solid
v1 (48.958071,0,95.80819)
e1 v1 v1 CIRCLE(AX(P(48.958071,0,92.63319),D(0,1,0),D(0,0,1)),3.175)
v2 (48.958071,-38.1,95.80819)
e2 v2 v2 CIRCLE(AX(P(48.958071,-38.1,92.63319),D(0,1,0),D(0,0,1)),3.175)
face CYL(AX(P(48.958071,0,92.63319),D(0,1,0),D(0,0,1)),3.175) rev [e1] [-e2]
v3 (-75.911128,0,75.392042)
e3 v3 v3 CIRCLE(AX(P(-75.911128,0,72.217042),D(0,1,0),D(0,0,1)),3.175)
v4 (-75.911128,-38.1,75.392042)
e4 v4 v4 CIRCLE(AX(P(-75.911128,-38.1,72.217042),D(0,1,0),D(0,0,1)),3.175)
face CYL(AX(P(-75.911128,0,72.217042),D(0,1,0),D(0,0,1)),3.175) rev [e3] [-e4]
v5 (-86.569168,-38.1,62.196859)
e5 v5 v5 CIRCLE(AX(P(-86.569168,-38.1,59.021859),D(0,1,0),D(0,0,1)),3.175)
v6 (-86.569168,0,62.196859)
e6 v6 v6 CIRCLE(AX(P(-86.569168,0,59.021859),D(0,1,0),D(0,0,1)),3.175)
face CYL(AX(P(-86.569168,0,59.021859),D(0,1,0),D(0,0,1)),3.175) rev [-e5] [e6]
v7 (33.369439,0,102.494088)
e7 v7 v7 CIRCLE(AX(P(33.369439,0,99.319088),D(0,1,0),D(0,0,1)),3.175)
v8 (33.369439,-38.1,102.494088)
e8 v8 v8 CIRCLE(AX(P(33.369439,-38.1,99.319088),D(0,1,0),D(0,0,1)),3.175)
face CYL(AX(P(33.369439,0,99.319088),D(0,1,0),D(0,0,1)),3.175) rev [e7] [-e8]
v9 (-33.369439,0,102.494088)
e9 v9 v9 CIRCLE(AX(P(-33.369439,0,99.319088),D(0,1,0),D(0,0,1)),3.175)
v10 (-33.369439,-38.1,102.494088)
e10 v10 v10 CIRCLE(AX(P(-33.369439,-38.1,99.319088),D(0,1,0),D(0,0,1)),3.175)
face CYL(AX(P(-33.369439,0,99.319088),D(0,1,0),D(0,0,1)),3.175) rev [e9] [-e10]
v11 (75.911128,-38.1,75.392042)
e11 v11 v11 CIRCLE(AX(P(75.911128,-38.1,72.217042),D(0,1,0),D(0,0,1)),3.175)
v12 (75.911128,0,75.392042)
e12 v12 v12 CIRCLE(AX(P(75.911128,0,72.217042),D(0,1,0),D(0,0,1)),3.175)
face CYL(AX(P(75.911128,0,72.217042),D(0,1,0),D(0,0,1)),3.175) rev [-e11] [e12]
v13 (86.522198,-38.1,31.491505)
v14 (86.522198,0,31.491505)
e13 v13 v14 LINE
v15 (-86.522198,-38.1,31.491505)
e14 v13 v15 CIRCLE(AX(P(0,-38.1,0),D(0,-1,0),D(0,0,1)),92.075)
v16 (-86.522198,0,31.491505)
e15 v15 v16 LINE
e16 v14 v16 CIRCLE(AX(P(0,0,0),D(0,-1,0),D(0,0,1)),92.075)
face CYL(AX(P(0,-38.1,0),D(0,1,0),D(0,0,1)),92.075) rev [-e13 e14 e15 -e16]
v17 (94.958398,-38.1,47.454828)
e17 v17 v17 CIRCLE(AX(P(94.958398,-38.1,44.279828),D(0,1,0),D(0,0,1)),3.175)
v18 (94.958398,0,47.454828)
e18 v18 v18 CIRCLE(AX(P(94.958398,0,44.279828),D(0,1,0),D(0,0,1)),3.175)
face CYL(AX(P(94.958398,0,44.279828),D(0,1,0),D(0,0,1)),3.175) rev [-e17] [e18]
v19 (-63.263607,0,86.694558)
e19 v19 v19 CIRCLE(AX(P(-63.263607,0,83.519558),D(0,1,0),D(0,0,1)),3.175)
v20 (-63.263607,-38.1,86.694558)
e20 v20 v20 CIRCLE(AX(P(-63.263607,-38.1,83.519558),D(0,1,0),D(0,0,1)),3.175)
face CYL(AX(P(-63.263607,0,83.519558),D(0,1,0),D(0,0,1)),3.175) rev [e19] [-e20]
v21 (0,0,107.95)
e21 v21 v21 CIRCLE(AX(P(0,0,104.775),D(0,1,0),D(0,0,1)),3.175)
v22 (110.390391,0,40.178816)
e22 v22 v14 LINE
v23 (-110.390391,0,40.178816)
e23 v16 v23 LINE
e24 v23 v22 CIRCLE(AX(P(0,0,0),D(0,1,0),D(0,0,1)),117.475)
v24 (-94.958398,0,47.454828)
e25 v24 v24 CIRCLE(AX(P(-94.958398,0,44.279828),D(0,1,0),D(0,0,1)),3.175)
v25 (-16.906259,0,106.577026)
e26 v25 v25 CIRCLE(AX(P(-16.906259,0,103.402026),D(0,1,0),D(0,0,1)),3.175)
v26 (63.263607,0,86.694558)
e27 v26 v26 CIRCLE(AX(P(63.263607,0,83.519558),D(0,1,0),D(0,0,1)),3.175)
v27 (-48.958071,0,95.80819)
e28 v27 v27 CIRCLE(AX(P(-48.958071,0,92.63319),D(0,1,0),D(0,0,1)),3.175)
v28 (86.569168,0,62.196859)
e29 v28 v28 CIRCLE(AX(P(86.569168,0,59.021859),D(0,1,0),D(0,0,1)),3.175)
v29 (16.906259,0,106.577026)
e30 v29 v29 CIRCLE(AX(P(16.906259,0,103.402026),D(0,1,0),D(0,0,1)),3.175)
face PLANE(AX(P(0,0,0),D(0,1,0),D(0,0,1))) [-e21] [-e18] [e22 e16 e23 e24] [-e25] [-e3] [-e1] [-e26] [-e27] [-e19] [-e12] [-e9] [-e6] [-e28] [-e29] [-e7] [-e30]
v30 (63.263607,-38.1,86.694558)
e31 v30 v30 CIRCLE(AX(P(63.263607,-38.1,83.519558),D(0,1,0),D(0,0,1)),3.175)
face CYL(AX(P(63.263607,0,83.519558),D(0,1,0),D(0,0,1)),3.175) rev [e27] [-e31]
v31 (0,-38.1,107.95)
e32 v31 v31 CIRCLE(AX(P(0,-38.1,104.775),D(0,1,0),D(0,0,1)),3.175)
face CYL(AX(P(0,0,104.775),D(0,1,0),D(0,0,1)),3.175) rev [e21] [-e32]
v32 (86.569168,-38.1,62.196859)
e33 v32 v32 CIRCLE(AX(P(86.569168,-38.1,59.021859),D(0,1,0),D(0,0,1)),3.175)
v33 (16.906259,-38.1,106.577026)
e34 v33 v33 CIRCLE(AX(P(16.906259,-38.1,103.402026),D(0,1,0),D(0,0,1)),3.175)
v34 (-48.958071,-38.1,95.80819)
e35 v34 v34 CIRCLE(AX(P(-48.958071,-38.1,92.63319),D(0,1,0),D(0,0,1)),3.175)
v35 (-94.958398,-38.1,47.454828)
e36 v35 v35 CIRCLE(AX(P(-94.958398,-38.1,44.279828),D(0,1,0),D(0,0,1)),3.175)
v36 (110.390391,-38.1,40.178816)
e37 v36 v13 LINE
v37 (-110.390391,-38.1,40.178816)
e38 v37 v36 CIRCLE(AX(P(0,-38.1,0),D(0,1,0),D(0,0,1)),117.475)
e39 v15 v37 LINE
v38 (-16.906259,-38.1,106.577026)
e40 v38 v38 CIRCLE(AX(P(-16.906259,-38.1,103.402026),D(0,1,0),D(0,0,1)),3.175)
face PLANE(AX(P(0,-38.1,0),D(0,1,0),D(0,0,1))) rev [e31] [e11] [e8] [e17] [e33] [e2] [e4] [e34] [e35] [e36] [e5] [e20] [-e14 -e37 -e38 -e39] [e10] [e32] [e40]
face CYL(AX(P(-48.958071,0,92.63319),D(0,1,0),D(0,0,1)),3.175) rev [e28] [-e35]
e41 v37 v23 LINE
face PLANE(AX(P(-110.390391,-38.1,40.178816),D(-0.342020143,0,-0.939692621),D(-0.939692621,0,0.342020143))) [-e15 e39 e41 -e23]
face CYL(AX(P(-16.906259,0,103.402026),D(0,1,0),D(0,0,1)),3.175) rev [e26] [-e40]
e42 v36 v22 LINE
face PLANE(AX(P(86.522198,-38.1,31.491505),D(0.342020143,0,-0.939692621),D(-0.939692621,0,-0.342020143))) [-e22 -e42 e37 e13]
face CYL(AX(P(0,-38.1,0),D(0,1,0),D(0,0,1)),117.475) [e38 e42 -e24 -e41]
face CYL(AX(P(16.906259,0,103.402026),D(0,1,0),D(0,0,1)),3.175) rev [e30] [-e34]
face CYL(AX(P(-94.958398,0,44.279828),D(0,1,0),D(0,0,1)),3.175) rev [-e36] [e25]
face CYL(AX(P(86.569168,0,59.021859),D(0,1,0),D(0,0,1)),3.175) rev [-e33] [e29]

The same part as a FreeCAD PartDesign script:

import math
import FreeCAD as App
import Part
import Sketcher
Q = App.Units.Quantity

doc = App.newDocument("Part")
body = doc.addObject("PartDesign::Body", "Body")

sketch1 = body.newObject("Sketcher::SketchObject", "Sketch")
sketch1.AttachmentSupport = (doc.getObject("XZ_Plane"), [""])
sketch1.MapMode = "FlatFace"
sketch1.addGeometry([
    Part.LineSegment(App.Vector(-87, 31, 0), App.Vector(-110, 40, 0)),
    Part.ArcOfCircle(Part.Circle(App.Vector(0, 0, 0), App.Vector(0, 0, 1), 117), math.radians(20), math.radians(160)),
    Part.LineSegment(App.Vector(110, 40, 0), App.Vector(87, 31, 0)),
    Part.ArcOfCircle(Part.Circle(App.Vector(0, 0, 0), App.Vector(0, 0, 1), 92), math.radians(20), math.radians(160)),
], False)
sketch1.addConstraint([
    Sketcher.Constraint("Coincident", 0, 2, 1, 2),
    Sketcher.Constraint("Coincident", 1, 1, 2, 1),
    Sketcher.Constraint("Coincident", 2, 2, 3, 1),
    Sketcher.Constraint("Coincident", 3, 2, 0, 1),
    Sketcher.Constraint("Coincident", 1, 3, -1, 1),
    Sketcher.Constraint("Coincident", 3, 3, -1, 1),
    Sketcher.Constraint("Horizontal", 0, 2, 1, 1),
    Sketcher.Constraint("Horizontal", 2, 2, 3, 2),
    Sketcher.Constraint("Distance", 0, Q("1 in")),
    Sketcher.Constraint("Angle", 0, Q("160 deg")),
    Sketcher.Constraint("Radius", 1, Q("4.625 in")),
    Sketcher.Constraint("DistanceX", -1, 1, 2, 2, 86.522198),
])
pad1 = body.newObject("PartDesign::Pad", "Pad")
pad1.Profile = sketch1
pad1.Length = Q("1.5 in")

sketch2 = body.newObject("Sketcher::SketchObject", "Sketch001")
sketch2.AttachmentSupport = (doc.getObject("XZ_Plane"), [""])
sketch2.MapMode = "FlatFace"
sketch2.addGeometry(Part.Circle(App.Vector(0, 104.8, 0), App.Vector(0, 0, 1), 3.2), False)
sketch2.addConstraint([
    Sketcher.Constraint("PointOnObject", 0, 3, -2),
    Sketcher.Constraint("Diameter", 0, Q("0.25 in")),
    Sketcher.Constraint("DistanceY", -1, 1, 0, 3, Q("4.125 in")),
])
doc.recompute()
hole = body.newObject("PartDesign::Hole", "Hole")
hole.Profile = sketch2
hole.ThreadType = "None"
hole.Diameter = Q("0.25 in")
hole.DepthType = "ThroughAll"
hole.Reversed = True
doc.recompute()

polarpattern = body.newObject("PartDesign::PolarPattern", "PolarPattern")
polarpattern.Originals = [hole]
polarpattern.Axis = (doc.getObject("Y_Axis"), [""])
polarpattern.Angle = 65
polarpattern.Occurrences = 8
polarpattern.Reversed = True
body.Tip = polarpattern

sketch3 = body.newObject("Sketcher::SketchObject", "Sketch002")
sketch3.AttachmentSupport = (doc.getObject("XZ_Plane"), [""])
sketch3.MapMode = "FlatFace"
sketch3.addGeometry(Part.Circle(App.Vector(16.9, 103.4, 0), App.Vector(0, 0, 1), 3.2), False)
sketch3.addConstraint([
    Sketcher.Constraint("Diameter", 0, Q("0.25 in")),
    Sketcher.Constraint("DistanceX", -1, 1, 0, 3, 16.906259),
    Sketcher.Constraint("DistanceY", -1, 1, 0, 3, 103.402026),
])
doc.recompute()
hole2 = body.newObject("PartDesign::Hole", "Hole001")
hole2.Profile = sketch3
hole2.ThreadType = "None"
hole2.Diameter = Q("0.25 in")
hole2.DepthType = "ThroughAll"
hole2.Reversed = True

sketch4 = body.newObject("Sketcher::SketchObject", "Sketch003")
sketch4.AttachmentSupport = (doc.getObject("XZ_Plane"), [""])
sketch4.MapMode = "FlatFace"
sketch4.addGeometry(Part.Circle(App.Vector(33.4, 99.3, 0), App.Vector(0, 0, 1), 3.2), False)
sketch4.addConstraint([
    Sketcher.Constraint("Diameter", 0, Q("0.25 in")),
    Sketcher.Constraint("DistanceX", -1, 1, 0, 3, 33.369439),
    Sketcher.Constraint("DistanceY", -1, 1, 0, 3, 99.319088),
])
doc.recompute()
hole3 = body.newObject("PartDesign::Hole", "Hole002")
hole3.Profile = sketch4
hole3.ThreadType = "None"
hole3.Diameter = Q("0.25 in")
hole3.DepthType = "ThroughAll"
hole3.Reversed = True

sketch5 = body.newObject("Sketcher::SketchObject", "Sketch004")
sketch5.AttachmentSupport = (doc.getObject("XZ_Plane"), [""])
sketch5.MapMode = "FlatFace"
sketch5.addGeometry(Part.Circle(App.Vector(49, 92.6, 0), App.Vector(0, 0, 1), 3.2), False)
sketch5.addConstraint([
    Sketcher.Constraint("Diameter", 0, Q("0.25 in")),
    Sketcher.Constraint("DistanceX", -1, 1, 0, 3, 48.95807),
    Sketcher.Constraint("DistanceY", -1, 1, 0, 3, 92.63319),
])
doc.recompute()
hole4 = body.newObject("PartDesign::Hole", "Hole003")
hole4.Profile = sketch5
hole4.ThreadType = "None"
hole4.Diameter = Q("0.25 in")
hole4.DepthType = "ThroughAll"
hole4.Reversed = True

sketch6 = body.newObject("Sketcher::SketchObject", "Sketch005")
sketch6.AttachmentSupport = (doc.getObject("XZ_Plane"), [""])
sketch6.MapMode = "FlatFace"
sketch6.addGeometry(Part.Circle(App.Vector(63.3, 83.5, 0), App.Vector(0, 0, 1), 3.2), False)
sketch6.addConstraint([
    Sketcher.Constraint("Diameter", 0, Q("0.25 in")),
    Sketcher.Constraint("DistanceY", -1, 1, 0, 3, 83.519558),
    Sketcher.Constraint("DistanceX", -1, 1, 0, 3, 63.263607),
])
doc.recompute()
hole5 = body.newObject("PartDesign::Hole", "Hole004")
hole5.Profile = sketch6
hole5.ThreadType = "None"
hole5.Diameter = Q("0.25 in")
hole5.DepthType = "ThroughAll"
hole5.Reversed = True

sketch7 = body.newObject("Sketcher::SketchObject", "Sketch006")
sketch7.AttachmentSupport = (doc.getObject("XZ_Plane"), [""])
sketch7.MapMode = "FlatFace"
sketch7.addGeometry(Part.Circle(App.Vector(75.9, 72.2, 0), App.Vector(0, 0, 1), 3.2), False)
sketch7.addConstraint([
    Sketcher.Constraint("Diameter", 0, Q("0.25 in")),
    Sketcher.Constraint("DistanceX", -1, 1, 0, 3, 75.911128),
    Sketcher.Constraint("DistanceY", -1, 1, 0, 3, 72.217042),
])
doc.recompute()
hole6 = body.newObject("PartDesign::Hole", "Hole005")
hole6.Profile = sketch7
hole6.ThreadType = "None"
hole6.Diameter = Q("0.25 in")
hole6.DepthType = "ThroughAll"
hole6.Reversed = True

sketch8 = body.newObject("Sketcher::SketchObject", "Sketch007")
sketch8.AttachmentSupport = (doc.getObject("XZ_Plane"), [""])
sketch8.MapMode = "FlatFace"
sketch8.addGeometry(Part.Circle(App.Vector(86.6, 59, 0), App.Vector(0, 0, 1), 3.2), False)
sketch8.addConstraint([
    Sketcher.Constraint("Diameter", 0, Q("0.25 in")),
    Sketcher.Constraint("DistanceY", -1, 1, 0, 3, 59.021859),
    Sketcher.Constraint("DistanceX", -1, 1, 0, 3, 86.569168),
])
doc.recompute()
hole7 = body.newObject("PartDesign::Hole", "Hole006")
hole7.Profile = sketch8
hole7.ThreadType = "None"
hole7.Diameter = Q("0.25 in")
hole7.DepthType = "ThroughAll"
hole7.Reversed = True

sketch9 = body.newObject("Sketcher::SketchObject", "Sketch008")
sketch9.AttachmentSupport = (doc.getObject("XZ_Plane"), [""])
sketch9.MapMode = "FlatFace"
sketch9.addGeometry(Part.Circle(App.Vector(95, 44.3, 0), App.Vector(0, 0, 1), 3.2), False)
sketch9.addConstraint([
    Sketcher.Constraint("Diameter", 0, Q("0.25 in")),
    Sketcher.Constraint("DistanceX", -1, 1, 0, 3, 94.958398),
    Sketcher.Constraint("DistanceY", -1, 1, 0, 3, 44.279828),
])
doc.recompute()
hole8 = body.newObject("PartDesign::Hole", "Hole007")
hole8.Profile = sketch9
hole8.ThreadType = "None"
hole8.Diameter = Q("0.25 in")
hole8.DepthType = "ThroughAll"
hole8.Reversed = True

sketch10 = body.newObject("Sketcher::SketchObject", "Sketch009")
sketch10.AttachmentSupport = (doc.getObject("XZ_Plane"), [""])
sketch10.MapMode = "FlatFace"
sketch10.addGeometry(Part.Circle(App.Vector(0, 104.8, 0), App.Vector(0, 0, 1), 3.2), False)
sketch10.addConstraint([
    Sketcher.Constraint("PointOnObject", 0, 3, -2),
    Sketcher.Constraint("Diameter", 0, Q("0.25 in")),
    Sketcher.Constraint("DistanceY", -1, 1, 0, 3, Q("4.125 in")),
])
doc.recompute()
hole9 = body.newObject("PartDesign::Hole", "Hole008")
hole9.Profile = sketch10
hole9.ThreadType = "None"
hole9.Diameter = Q("0.25 in")
hole9.DepthType = "ThroughAll"
hole9.Reversed = True

doc.recompute()
